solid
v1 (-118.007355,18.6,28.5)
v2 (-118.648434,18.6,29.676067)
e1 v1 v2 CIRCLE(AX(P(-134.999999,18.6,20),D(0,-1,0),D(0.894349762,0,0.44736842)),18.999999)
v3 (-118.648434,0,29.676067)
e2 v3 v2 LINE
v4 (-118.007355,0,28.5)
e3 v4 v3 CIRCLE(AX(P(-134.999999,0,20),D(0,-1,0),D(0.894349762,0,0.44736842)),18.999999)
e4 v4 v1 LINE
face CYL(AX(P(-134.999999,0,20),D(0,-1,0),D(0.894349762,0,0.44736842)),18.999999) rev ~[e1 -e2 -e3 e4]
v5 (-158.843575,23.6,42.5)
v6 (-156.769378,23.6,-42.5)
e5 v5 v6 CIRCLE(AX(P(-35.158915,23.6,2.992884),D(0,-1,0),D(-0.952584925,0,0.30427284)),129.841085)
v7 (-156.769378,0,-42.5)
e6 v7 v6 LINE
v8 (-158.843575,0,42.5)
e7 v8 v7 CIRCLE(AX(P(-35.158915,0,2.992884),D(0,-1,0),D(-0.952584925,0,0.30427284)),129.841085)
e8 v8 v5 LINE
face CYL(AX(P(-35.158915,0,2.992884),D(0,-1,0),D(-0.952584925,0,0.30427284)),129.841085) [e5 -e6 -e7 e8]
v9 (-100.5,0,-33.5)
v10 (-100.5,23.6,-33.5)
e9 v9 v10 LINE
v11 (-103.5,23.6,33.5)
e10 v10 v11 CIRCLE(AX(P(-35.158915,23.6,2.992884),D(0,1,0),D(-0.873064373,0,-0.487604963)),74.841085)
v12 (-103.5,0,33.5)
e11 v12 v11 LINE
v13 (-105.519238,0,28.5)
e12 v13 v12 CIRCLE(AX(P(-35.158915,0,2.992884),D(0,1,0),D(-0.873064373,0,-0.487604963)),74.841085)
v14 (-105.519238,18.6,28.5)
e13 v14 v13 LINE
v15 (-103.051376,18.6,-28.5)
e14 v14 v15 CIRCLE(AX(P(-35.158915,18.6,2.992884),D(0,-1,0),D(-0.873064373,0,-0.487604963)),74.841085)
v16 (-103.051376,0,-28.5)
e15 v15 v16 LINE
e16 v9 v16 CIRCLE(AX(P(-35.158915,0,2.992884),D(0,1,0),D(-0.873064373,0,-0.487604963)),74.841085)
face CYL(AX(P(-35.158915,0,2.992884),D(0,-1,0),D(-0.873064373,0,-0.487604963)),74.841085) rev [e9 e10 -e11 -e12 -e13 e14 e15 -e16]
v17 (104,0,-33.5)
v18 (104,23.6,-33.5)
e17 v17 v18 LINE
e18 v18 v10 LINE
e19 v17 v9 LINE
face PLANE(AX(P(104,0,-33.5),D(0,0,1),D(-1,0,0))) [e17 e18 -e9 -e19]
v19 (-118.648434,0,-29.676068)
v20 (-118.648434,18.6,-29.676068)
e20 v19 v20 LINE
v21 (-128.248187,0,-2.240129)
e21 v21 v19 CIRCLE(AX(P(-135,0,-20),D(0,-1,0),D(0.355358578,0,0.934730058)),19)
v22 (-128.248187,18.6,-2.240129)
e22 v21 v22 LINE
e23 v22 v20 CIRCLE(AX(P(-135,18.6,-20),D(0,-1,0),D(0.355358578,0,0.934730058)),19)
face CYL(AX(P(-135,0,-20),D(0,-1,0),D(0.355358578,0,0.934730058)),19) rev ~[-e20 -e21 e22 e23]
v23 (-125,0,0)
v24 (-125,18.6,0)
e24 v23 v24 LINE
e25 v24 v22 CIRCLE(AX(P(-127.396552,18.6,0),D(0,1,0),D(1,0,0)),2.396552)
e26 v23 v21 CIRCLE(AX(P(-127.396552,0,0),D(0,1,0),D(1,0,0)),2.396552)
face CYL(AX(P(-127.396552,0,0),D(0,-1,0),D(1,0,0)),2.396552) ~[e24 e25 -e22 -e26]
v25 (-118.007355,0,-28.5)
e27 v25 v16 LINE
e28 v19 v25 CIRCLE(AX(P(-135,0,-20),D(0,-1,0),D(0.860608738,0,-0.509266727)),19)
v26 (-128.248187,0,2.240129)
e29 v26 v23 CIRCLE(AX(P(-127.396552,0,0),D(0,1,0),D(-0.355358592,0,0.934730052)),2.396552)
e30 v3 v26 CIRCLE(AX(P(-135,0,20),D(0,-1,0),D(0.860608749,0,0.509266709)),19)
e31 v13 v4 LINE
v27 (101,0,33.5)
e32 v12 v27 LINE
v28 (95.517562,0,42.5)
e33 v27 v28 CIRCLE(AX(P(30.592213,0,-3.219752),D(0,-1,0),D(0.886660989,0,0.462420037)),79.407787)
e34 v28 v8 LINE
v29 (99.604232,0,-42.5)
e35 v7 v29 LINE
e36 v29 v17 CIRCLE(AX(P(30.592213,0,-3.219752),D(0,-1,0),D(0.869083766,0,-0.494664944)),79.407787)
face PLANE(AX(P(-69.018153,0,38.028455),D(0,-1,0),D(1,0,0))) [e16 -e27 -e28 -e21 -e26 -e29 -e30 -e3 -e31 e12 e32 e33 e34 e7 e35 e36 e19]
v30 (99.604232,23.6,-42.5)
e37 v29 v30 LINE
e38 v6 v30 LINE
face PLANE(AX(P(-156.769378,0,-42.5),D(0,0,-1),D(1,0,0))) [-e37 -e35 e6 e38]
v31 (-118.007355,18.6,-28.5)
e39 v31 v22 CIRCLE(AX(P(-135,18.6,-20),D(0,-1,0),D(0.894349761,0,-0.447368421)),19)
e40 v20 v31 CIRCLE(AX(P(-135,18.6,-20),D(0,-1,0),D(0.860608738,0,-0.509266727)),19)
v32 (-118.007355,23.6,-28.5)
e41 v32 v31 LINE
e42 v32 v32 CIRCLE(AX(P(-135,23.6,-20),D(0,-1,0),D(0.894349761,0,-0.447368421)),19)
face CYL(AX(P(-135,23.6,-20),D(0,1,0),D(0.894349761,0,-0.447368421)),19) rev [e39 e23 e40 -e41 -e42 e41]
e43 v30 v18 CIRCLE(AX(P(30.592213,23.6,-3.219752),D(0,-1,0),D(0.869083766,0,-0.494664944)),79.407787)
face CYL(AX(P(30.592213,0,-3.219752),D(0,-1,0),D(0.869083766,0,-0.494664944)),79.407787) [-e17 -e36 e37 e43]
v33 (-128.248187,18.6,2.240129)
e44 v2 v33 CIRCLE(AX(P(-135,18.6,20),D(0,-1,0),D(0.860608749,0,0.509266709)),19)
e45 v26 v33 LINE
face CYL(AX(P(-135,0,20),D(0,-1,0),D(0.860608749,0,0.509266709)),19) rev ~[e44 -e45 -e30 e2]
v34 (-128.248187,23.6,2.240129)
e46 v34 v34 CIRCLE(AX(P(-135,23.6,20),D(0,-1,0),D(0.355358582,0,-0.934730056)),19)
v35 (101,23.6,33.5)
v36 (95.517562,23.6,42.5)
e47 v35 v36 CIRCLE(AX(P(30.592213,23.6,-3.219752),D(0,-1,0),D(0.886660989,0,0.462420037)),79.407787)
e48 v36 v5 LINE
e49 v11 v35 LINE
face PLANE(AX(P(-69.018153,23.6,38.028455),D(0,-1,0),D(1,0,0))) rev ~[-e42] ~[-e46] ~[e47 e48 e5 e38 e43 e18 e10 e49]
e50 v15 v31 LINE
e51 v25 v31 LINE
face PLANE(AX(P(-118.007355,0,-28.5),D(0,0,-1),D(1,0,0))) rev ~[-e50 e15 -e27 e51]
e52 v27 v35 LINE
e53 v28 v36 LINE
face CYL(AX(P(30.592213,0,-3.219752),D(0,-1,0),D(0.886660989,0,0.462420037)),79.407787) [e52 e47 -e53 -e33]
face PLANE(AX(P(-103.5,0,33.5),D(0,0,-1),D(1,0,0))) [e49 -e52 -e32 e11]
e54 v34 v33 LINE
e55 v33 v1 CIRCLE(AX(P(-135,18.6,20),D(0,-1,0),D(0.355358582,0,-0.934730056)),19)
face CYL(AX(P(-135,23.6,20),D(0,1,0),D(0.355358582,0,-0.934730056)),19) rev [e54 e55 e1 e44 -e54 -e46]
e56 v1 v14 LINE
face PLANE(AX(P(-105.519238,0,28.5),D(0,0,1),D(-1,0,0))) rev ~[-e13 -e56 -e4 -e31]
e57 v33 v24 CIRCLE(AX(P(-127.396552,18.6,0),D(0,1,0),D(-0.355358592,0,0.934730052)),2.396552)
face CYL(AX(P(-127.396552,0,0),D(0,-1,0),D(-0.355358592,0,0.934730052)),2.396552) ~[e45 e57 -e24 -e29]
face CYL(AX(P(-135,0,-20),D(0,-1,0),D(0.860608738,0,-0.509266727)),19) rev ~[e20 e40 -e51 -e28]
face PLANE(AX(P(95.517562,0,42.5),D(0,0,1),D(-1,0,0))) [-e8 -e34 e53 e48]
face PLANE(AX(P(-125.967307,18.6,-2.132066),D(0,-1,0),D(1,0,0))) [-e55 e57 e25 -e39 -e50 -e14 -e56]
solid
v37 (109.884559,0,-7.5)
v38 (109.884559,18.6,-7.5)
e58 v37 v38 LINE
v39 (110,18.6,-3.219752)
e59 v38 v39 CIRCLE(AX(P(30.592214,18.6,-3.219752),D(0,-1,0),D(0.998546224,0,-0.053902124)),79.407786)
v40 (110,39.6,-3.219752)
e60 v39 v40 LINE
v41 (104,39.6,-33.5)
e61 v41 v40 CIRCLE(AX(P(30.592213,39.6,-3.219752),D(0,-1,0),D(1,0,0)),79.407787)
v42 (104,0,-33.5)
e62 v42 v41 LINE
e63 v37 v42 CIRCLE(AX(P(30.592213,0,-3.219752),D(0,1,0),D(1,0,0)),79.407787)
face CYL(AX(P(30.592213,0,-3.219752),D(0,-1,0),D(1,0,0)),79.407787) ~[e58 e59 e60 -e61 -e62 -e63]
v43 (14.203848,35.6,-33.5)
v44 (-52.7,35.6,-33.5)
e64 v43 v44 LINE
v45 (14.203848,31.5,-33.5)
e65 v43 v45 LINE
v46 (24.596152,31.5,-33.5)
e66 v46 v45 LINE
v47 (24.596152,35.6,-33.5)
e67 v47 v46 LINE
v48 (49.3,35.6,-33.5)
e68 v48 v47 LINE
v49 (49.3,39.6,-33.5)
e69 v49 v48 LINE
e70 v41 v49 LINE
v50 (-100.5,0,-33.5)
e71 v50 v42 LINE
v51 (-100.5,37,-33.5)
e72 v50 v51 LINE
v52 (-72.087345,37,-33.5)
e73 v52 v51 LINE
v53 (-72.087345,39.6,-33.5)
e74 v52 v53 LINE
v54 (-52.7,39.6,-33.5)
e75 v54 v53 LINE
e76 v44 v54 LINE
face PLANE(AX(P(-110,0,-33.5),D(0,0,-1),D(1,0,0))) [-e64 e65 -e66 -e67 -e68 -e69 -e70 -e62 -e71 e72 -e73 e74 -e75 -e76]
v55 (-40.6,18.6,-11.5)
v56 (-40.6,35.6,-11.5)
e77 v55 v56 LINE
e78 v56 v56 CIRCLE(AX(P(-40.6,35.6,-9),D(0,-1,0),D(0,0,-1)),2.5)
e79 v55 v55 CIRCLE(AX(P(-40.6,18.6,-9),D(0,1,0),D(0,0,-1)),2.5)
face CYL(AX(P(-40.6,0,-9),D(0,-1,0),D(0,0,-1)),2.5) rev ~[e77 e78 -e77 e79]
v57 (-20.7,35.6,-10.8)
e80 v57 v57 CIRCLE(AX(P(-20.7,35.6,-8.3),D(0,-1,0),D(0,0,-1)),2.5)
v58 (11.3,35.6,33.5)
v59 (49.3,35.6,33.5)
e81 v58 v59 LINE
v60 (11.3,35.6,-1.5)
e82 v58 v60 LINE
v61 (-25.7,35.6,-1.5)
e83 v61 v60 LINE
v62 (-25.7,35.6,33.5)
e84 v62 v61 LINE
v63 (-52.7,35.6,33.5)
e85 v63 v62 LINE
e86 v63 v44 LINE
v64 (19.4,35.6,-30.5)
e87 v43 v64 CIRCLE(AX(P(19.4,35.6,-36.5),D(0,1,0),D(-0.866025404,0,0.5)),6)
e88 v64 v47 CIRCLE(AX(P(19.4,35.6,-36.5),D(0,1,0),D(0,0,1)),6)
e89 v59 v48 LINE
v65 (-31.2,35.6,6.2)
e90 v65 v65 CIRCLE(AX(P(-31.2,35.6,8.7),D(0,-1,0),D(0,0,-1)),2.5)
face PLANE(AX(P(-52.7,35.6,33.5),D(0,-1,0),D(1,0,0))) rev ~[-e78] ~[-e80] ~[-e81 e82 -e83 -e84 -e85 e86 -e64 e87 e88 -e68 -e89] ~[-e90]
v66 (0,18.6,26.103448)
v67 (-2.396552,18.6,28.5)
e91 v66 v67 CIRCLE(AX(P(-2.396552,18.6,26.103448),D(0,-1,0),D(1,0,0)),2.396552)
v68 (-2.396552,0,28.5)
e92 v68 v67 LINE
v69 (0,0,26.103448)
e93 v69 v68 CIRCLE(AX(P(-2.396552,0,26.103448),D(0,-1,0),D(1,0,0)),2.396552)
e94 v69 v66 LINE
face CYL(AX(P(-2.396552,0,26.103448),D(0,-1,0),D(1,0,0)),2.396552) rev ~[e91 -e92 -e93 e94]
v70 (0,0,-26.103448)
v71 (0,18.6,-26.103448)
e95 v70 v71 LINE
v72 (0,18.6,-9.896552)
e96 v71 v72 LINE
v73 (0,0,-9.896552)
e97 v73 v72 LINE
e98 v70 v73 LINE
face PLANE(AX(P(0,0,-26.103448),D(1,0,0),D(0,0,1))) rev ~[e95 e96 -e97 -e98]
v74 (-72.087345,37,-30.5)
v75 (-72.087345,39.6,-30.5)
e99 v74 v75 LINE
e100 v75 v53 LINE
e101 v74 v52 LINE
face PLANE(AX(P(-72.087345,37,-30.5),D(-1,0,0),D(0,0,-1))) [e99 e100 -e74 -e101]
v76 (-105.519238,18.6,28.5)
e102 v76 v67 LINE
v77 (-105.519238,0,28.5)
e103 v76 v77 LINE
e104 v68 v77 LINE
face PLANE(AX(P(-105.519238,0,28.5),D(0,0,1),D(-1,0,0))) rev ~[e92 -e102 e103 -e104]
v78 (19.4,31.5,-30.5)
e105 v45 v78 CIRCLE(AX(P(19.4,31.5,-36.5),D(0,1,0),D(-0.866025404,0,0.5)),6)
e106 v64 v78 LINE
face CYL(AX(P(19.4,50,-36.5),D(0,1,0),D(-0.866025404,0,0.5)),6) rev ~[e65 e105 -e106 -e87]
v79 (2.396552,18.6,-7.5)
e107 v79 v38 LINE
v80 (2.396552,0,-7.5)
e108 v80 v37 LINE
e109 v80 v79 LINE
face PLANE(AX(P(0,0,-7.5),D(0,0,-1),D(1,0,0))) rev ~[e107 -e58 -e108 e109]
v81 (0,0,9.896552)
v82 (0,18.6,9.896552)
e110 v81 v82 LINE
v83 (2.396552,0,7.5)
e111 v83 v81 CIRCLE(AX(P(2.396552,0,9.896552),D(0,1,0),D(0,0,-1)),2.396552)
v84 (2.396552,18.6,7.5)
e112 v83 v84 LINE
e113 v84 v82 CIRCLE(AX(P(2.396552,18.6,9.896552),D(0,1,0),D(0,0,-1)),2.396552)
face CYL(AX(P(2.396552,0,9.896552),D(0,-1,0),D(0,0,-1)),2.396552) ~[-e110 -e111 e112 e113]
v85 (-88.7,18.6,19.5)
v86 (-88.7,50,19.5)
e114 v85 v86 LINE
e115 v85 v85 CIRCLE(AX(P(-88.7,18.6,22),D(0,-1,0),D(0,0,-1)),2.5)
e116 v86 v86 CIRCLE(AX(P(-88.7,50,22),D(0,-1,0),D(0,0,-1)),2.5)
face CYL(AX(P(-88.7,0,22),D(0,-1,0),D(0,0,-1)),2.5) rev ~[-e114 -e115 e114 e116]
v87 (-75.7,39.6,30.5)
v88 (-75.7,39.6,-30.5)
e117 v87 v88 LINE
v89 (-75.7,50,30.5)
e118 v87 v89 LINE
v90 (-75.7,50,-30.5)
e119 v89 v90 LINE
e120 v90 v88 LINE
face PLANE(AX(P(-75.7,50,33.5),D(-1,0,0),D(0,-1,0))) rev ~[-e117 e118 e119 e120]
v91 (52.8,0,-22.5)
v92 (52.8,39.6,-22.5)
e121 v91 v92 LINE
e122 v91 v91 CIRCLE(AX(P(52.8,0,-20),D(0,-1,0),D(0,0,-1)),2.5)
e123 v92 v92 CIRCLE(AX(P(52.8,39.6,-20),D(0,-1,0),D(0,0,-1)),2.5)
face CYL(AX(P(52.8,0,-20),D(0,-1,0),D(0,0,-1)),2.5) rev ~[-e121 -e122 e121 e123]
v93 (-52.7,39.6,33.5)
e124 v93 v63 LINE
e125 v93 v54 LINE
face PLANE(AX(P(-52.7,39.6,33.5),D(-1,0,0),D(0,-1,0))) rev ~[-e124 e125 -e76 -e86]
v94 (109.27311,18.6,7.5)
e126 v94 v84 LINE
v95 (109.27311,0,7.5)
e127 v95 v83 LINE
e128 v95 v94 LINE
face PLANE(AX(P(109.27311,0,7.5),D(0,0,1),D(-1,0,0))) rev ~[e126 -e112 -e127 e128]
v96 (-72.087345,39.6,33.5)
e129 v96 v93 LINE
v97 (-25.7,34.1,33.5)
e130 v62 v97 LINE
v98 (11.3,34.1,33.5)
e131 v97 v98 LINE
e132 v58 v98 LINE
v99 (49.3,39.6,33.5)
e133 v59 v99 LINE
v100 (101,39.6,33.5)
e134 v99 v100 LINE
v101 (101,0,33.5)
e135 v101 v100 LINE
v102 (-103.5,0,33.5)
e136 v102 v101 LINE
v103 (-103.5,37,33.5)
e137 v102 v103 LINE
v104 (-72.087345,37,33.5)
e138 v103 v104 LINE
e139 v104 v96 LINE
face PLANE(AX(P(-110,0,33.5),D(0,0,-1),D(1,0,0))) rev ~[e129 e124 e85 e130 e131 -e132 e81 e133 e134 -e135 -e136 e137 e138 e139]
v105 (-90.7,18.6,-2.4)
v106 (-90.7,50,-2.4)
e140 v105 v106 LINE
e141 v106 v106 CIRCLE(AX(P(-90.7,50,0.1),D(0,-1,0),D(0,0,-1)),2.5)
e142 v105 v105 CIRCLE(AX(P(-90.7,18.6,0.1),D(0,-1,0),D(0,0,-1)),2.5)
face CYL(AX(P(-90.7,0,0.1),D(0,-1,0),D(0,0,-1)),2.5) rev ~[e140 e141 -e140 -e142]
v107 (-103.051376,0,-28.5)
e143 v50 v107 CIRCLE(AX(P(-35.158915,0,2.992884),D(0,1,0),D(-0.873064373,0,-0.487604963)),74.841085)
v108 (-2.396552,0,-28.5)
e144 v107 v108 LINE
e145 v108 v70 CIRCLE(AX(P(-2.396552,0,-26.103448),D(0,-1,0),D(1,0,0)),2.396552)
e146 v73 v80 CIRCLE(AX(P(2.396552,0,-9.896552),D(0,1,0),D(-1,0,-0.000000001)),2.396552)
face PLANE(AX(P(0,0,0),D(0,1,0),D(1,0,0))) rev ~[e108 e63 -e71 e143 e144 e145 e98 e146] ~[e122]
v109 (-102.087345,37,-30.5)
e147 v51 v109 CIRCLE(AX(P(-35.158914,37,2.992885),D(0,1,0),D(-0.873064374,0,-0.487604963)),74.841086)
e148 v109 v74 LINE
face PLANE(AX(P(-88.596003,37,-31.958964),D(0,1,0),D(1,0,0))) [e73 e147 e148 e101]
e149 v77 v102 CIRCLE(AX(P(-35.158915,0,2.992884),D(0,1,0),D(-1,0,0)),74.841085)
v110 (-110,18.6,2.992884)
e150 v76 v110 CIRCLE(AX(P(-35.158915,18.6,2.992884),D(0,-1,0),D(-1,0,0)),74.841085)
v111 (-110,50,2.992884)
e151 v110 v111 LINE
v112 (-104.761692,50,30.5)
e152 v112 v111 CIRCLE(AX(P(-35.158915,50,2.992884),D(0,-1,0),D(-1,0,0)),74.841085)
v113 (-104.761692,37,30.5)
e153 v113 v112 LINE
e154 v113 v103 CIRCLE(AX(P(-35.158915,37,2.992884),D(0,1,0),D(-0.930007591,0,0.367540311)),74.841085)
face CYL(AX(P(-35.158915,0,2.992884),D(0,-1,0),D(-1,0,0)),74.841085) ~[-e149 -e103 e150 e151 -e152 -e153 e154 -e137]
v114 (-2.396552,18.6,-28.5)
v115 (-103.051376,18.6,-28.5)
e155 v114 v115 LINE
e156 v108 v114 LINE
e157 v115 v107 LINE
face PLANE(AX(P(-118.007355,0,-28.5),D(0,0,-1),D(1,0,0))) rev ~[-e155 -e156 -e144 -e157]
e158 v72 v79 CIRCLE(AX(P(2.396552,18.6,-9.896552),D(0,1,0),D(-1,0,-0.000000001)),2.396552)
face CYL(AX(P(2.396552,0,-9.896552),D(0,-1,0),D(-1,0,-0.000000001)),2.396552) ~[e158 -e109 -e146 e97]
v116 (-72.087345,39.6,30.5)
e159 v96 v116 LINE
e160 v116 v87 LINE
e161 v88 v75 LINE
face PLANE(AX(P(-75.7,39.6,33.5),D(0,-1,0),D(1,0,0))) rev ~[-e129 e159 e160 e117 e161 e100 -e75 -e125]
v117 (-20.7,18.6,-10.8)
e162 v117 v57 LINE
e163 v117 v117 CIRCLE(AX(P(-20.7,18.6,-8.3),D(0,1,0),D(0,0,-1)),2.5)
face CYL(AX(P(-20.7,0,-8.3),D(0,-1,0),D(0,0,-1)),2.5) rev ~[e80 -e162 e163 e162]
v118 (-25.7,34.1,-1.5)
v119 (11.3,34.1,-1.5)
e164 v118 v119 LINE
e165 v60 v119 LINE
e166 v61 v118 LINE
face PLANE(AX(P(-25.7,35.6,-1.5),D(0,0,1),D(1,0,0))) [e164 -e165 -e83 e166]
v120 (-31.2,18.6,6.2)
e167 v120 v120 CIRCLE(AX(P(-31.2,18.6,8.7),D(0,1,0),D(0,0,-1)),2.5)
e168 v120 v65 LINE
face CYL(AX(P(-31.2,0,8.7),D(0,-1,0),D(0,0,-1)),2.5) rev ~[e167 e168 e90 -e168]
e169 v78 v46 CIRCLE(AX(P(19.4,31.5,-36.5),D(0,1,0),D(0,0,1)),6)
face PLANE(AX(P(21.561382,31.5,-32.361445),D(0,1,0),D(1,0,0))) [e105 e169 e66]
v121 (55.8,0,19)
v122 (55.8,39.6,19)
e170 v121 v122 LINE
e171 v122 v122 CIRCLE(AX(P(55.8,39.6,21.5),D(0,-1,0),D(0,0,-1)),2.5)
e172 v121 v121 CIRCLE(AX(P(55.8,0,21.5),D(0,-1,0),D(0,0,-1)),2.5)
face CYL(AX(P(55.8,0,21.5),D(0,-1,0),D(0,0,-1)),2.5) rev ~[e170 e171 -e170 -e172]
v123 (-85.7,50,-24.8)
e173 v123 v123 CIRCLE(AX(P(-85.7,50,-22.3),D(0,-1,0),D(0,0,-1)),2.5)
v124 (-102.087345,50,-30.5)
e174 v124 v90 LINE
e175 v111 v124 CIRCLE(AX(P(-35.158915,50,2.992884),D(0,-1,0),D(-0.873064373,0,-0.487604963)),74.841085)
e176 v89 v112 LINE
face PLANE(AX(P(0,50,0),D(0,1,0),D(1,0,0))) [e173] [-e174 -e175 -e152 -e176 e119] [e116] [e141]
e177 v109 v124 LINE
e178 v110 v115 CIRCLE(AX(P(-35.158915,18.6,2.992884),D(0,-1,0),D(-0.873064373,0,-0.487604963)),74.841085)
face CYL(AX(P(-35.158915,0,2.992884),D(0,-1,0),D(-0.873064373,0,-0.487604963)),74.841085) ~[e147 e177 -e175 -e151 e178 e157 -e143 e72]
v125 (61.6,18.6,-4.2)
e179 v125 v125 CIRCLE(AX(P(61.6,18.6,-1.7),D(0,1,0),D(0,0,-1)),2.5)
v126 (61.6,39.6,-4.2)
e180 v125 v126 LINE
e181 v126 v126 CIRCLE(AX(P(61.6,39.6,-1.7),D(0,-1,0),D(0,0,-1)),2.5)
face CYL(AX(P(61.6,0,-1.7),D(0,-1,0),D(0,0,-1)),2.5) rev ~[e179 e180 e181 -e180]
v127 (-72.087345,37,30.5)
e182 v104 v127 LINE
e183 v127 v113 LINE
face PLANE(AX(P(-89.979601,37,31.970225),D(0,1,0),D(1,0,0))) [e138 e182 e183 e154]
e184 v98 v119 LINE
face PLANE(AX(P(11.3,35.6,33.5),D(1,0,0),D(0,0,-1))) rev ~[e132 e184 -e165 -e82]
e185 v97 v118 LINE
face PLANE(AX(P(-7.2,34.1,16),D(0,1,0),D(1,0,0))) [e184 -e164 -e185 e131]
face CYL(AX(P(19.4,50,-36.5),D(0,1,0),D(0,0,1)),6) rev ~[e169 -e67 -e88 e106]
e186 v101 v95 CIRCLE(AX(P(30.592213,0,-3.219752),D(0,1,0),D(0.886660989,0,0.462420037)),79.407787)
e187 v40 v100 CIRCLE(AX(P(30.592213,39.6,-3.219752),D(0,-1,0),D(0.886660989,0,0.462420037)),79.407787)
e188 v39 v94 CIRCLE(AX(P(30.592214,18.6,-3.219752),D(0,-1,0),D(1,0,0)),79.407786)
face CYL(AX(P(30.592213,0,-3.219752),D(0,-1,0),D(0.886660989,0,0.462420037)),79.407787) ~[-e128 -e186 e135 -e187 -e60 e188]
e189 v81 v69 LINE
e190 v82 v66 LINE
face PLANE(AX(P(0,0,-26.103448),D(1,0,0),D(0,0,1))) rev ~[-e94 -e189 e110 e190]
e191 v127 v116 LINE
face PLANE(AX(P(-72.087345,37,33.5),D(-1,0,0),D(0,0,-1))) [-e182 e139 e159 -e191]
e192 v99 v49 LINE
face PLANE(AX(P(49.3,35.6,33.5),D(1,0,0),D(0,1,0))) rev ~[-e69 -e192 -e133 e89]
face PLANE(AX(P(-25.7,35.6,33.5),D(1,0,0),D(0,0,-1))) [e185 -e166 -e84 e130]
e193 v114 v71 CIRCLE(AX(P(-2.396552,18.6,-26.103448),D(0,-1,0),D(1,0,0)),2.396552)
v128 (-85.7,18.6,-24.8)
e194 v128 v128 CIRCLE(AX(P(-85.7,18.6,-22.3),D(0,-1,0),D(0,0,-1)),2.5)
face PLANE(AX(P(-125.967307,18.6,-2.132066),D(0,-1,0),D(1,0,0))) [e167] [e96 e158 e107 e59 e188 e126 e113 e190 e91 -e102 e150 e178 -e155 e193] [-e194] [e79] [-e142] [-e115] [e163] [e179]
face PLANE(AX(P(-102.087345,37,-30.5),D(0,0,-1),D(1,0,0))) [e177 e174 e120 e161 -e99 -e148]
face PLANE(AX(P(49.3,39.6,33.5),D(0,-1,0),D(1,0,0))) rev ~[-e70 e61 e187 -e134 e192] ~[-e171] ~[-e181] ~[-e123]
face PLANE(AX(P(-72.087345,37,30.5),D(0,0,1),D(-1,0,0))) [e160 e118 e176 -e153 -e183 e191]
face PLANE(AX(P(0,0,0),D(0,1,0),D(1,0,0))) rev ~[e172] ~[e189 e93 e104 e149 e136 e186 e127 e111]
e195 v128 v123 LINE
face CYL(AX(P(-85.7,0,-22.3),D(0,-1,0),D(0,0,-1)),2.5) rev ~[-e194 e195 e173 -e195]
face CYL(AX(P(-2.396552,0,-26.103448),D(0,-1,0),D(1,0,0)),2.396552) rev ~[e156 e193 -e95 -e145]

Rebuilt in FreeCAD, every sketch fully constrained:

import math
import FreeCAD as App
import Part
import Sketcher

V = App.Vector
Q = App.Units.Quantity

doc = App.newDocument("Part")
body = doc.addObject("PartDesign::Body", "Body")

# Sketch on XZ plane
sketch1 = doc.addObject("Sketcher::SketchObject", "Sketch")
body.addObject(sketch1)
sketch1.AttachmentSupport = (doc.XZ_Plane, [""])
sketch1.MapMode = "FlatFace"
sketch1.addGeometry([
    Part.LineSegment(V(-110, -34, 0), V(-110, 34, 0)),
    Part.LineSegment(V(-110, 34, 0), V(110, 34, 0)),
    Part.LineSegment(V(110, 34, 0), V(110, -34, 0)),
    Part.LineSegment(V(110, -34, 0), V(-110, -34, 0)),
], False)
sketch1.addConstraint([
    Sketcher.Constraint("Coincident", 0, 2, 1, 1),
    Sketcher.Constraint("Coincident", 1, 2, 2, 1),
    Sketcher.Constraint("Coincident", 2, 2, 3, 1),
    Sketcher.Constraint("Coincident", 3, 2, 0, 1),
    Sketcher.Constraint("Vertical", 0),
    Sketcher.Constraint("Horizontal", 1),
    Sketcher.Constraint("Vertical", 2),
    Sketcher.Constraint("Horizontal", 3),
    Sketcher.Constraint("Symmetric", 0, 2, 2, 2, -1, 1),
    Sketcher.Constraint("DistanceX", 1, 1, 1, 2, Q("220 mm")),
    Sketcher.Constraint("DistanceY", 0, 1, 0, 2, Q("67 mm")),
])
pad1 = doc.addObject("PartDesign::Pad", "Pad")
body.addObject(pad1)
pad1.Profile = sketch1
pad1.Length = 50
pad1.Reversed = True

# Sketch on XZ plane
sketch2 = doc.addObject("Sketcher::SketchObject", "Sketch001")
body.addObject(sketch2)
sketch2.AttachmentSupport = (doc.XZ_Plane, [""])
sketch2.MapMode = "FlatFace"
sketch2.addGeometry([
    Part.LineSegment(V(110, -3, 0), V(110, 34, 0)),  # 0
    Part.LineSegment(V(110, 34, 0), V(101, 34, 0)),  # 1
    Part.ArcOfCircle(Part.Circle(V(31, -3, 0), V(0, 0, 1), 79), math.radians(0), math.radians(28)),  # 2
    Part.LineSegment(V(110, -34, 0), V(110, -3, 0)),  # 3
    Part.ArcOfCircle(Part.Circle(V(31, -3, 0), V(0, 0, 1), 79), math.radians(-22), math.radians(0)),  # 4
    Part.LineSegment(V(104, -34, 0), V(110, -34, 0)),  # 5
    Part.ArcOfCircle(Part.Circle(V(-35, 3, 0), V(0, 0, 1), 75), math.radians(180), math.radians(209)),  # 6
    Part.LineSegment(V(-110, 3, 0), V(-110, -34, 0)),  # 7
    Part.LineSegment(V(-110, -34, 0), V(-100, -34, 0)),  # 8
    Part.ArcOfCircle(Part.Circle(V(-35, 3, 0), V(0, 0, 1), 75), math.radians(156), math.radians(180)),  # 9
    Part.LineSegment(V(-104, 34, 0), V(-110, 34, 0)),  # 10
    Part.LineSegment(V(-110, 34, 0), V(-110, 3, 0)),  # 11
], False)
sketch2.addConstraint([
    Sketcher.Constraint("Coincident", 0, 2, 1, 1),
    Sketcher.Constraint("Coincident", 1, 2, 2, 2),
    Sketcher.Constraint("Tangent", 2, 1, 0, 1),
    Sketcher.Constraint("Tangent", 3, 2, 4, 2),
    Sketcher.Constraint("Coincident", 4, 1, 5, 1),
    Sketcher.Constraint("Coincident", 5, 2, 3, 1),
    Sketcher.Constraint("Tangent", 6, 1, 7, 1),
    Sketcher.Constraint("Coincident", 7, 2, 8, 1),
    Sketcher.Constraint("Coincident", 8, 2, 6, 2),
    Sketcher.Constraint("Coincident", 9, 1, 10, 1),
    Sketcher.Constraint("Coincident", 10, 2, 11, 1),
    Sketcher.Constraint("Tangent", 11, 2, 9, 2),
    Sketcher.Constraint("Vertical", 0),
    Sketcher.Constraint("Horizontal", 1),
    Sketcher.Constraint("Vertical", 3),
    Sketcher.Constraint("Horizontal", 5),
    Sketcher.Constraint("Vertical", 7),
    Sketcher.Constraint("Horizontal", 8),
    Sketcher.Constraint("Horizontal", 10),
    Sketcher.Constraint("Vertical", 11),
    Sketcher.Constraint("Coincident", 4, 3, 2, 3),
    Sketcher.Constraint("Coincident", 9, 3, 6, 3),
    Sketcher.Constraint("Equal", 2, 4),
    Sketcher.Constraint("Equal", 6, 9),
    Sketcher.Constraint("Symmetric", 0, 2, 7, 2, -1, 1),
    Sketcher.Constraint("Horizontal", 5, 2, 7, 2),
    Sketcher.Constraint("Horizontal", 1, 2, 9, 1),
    Sketcher.Constraint("DistanceX", 1, 2, 1, 1, Q("9 mm")),
    Sketcher.Constraint("DistanceX", 5, 1, 5, 2, Q("6 mm")),
    Sketcher.Constraint("DistanceX", 8, 1, 8, 2, Q("9.5 mm")),
    Sketcher.Constraint("DistanceX", 10, 2, 10, 1, Q("6.5 mm")),
    Sketcher.Constraint("DistanceX", -1, 1, 0, 2, Q("110 mm")),
    Sketcher.Constraint("DistanceY", 4, 1, 1, 2, Q("67 mm")),
])
pocket1 = doc.addObject("PartDesign::Pocket", "Pocket")
body.addObject(pocket1)
pocket1.Profile = sketch2
pocket1.Type = "ThroughAll"

# Sketch on XY plane
sketch3 = doc.addObject("Sketcher::SketchObject", "Sketch002")
body.addObject(sketch3)
sketch3.AttachmentSupport = (doc.XY_Plane, [""])
sketch3.MapMode = "FlatFace"
sketch3.AttachmentOffset = App.Placement(V(0, 0, 33.5), App.Rotation())
sketch3.addGeometry([
    Part.LineSegment(V(-75.7, 39.6, 0), V(-75.7, 50, 0)),  # 0
    Part.LineSegment(V(-75.7, 50, 0), V(110, 50, 0)),  # 1
    Part.LineSegment(V(110, 50, 0), V(110, 39.6, 0)),  # 2
    Part.LineSegment(V(110, 39.6, 0), V(49.3, 39.6, 0)),  # 3
    Part.LineSegment(V(49.3, 39.6, 0), V(49.3, 35.6, 0)),  # 4
    Part.LineSegment(V(49.3, 35.6, 0), V(-52.7, 35.6, 0)),  # 5
    Part.LineSegment(V(-52.7, 35.6, 0), V(-52.7, 39.6, 0)),  # 6
    Part.LineSegment(V(-52.7, 39.6, 0), V(-75.7, 39.6, 0)),  # 7
], False)
sketch3.addConstraint([
    Sketcher.Constraint("Coincident", 0, 2, 1, 1),
    Sketcher.Constraint("Coincident", 1, 2, 2, 1),
    Sketcher.Constraint("Coincident", 2, 2, 3, 1),
    Sketcher.Constraint("Coincident", 3, 2, 4, 1),
    Sketcher.Constraint("Coincident", 4, 2, 5, 1),
    Sketcher.Constraint("Coincident", 5, 2, 6, 1),
    Sketcher.Constraint("Coincident", 6, 2, 7, 1),
    Sketcher.Constraint("Coincident", 7, 2, 0, 1),
    Sketcher.Constraint("Vertical", 0),
    Sketcher.Constraint("Horizontal", 1),
    Sketcher.Constraint("Vertical", 2),
    Sketcher.Constraint("Horizontal", 3),
    Sketcher.Constraint("Vertical", 4),
    Sketcher.Constraint("Horizontal", 5),
    Sketcher.Constraint("Vertical", 6),
    Sketcher.Constraint("Horizontal", 7),
    Sketcher.Constraint("Horizontal", 3, 2, 6, 2),
    Sketcher.Constraint("DistanceX", 5, 2, 5, 1, Q("102 mm")),
    Sketcher.Constraint("DistanceX", 7, 2, 7, 1, Q("23 mm")),
    Sketcher.Constraint("DistanceY", 4, 2, 4, 1, Q("4 mm")),
    Sketcher.Constraint("DistanceX", 1, 1, 1, 2, Q("185.7 mm")),
    Sketcher.Constraint("DistanceY", 0, 1, 0, 2, Q("10.4 mm")),
    Sketcher.Constraint("DistanceY", -1, 1, 0, 2, Q("50 mm")),
    Sketcher.Constraint("DistanceX", -1, 1, 1, 2, Q("110 mm")),
])
pocket2 = doc.addObject("PartDesign::Pocket", "Pocket001")
body.addObject(pocket2)
pocket2.Profile = sketch3
pocket2.Type = "ThroughAll"

# Sketch on XZ plane
sketch4 = doc.addObject("Sketcher::SketchObject", "Sketch003")
body.addObject(sketch4)
sketch4.AttachmentSupport = (doc.XZ_Plane, [""])
sketch4.MapMode = "FlatFace"
sketch4.AttachmentOffset = App.Placement(V(0, 0, -37), App.Rotation())
sketch4.addGeometry([
    Part.ArcOfCircle(Part.Circle(V(-35.2, 3, 0), V(0, 0, 1), 74.8), math.radians(-153.42), math.radians(-150.82)),  # 0
    Part.LineSegment(V(-102.1, -30.5, 0), V(-72.1, -30.5, 0)),  # 1
    Part.LineSegment(V(-72.1, -30.5, 0), V(-72.1, -33.5, 0)),  # 2
    Part.LineSegment(V(-72.1, -33.5, 0), V(-100.5, -33.5, 0)),  # 3
    Part.ArcOfCircle(Part.Circle(V(-35.2, 3, 0), V(0, 0, 1), 74.8), math.radians(155.94), math.radians(158.44)),  # 4
    Part.LineSegment(V(-103.5, 33.5, 0), V(-72.1, 33.5, 0)),  # 5
    Part.LineSegment(V(-72.1, 33.5, 0), V(-72.1, 30.5, 0)),  # 6
    Part.LineSegment(V(-72.1, 30.5, 0), V(-104.8, 30.5, 0)),  # 7
], False)
sketch4.addConstraint([
    Sketcher.Constraint("Coincident", 0, 1, 1, 1),
    Sketcher.Constraint("Coincident", 1, 2, 2, 1),
    Sketcher.Constraint("Coincident", 2, 2, 3, 1),
    Sketcher.Constraint("Coincident", 3, 2, 0, 2),
    Sketcher.Constraint("Coincident", 4, 1, 5, 1),
    Sketcher.Constraint("Coincident", 5, 2, 6, 1),
    Sketcher.Constraint("Coincident", 6, 2, 7, 1),
    Sketcher.Constraint("Coincident", 7, 2, 4, 2),
    Sketcher.Constraint("Horizontal", 1),
    Sketcher.Constraint("Vertical", 2),
    Sketcher.Constraint("Horizontal", 3),
    Sketcher.Constraint("Horizontal", 5),
    Sketcher.Constraint("Vertical", 6),
    Sketcher.Constraint("Horizontal", 7),
    Sketcher.Constraint("Coincident", 4, 3, 0, 3),
    Sketcher.Constraint("Equal", 0, 4),
    Sketcher.Constraint("Symmetric", 2, 2, 5, 2, -1),
    Sketcher.Constraint("Equal", 2, 6),
    Sketcher.Constraint("DistanceX", 1, 1, 1, 2, Q("30 mm")),
    Sketcher.Constraint("DistanceY", 2, 2, 2, 1, Q("3 mm")),
    Sketcher.Constraint("DistanceY", 0, 1, 4, 1, Q("64 mm")),
    Sketcher.Constraint("DistanceX", 4, 1, 3, 2, Q("3 mm")),
    Sketcher.Constraint("DistanceX", 3, 2, -1, 1, Q("100.5 mm")),
    Sketcher.Constraint("Radius", 0, Q("74.841086 mm")),
])
pocket3 = doc.addObject("PartDesign::Pocket", "Pocket002")
body.addObject(pocket3)
pocket3.Profile = sketch4
pocket3.Length = 13

# Sketch on XZ plane
sketch5 = doc.addObject("Sketcher::SketchObject", "Sketch004")
body.addObject(sketch5)
sketch5.AttachmentSupport = (doc.XZ_Plane, [""])
sketch5.MapMode = "FlatFace"
sketch5.addGeometry([
    Part.Circle(V(-40.6, -9, 0), V(0, 0, 1), 2.5),  # 0
    Part.Circle(V(-20.7, -8.3, 0), V(0, 0, 1), 2.5),  # 1
    Part.Circle(V(-31.2, 8.7, 0), V(0, 0, 1), 2.5),  # 2
    Part.Circle(V(-88.7, 22, 0), V(0, 0, 1), 2.5),  # 3
    Part.Circle(V(-90.7, 0.1, 0), V(0, 0, 1), 2.5),  # 4
    Part.Circle(V(-85.7, -22.3, 0), V(0, 0, 1), 2.5),  # 5
    Part.Circle(V(52.8, -20, 0), V(0, 0, 1), 2.5),  # 6
    Part.Circle(V(61.6, -1.7, 0), V(0, 0, 1), 2.5),  # 7
    Part.Circle(V(55.8, 21.5, 0), V(0, 0, 1), 2.5),  # 8
], False)
sketch5.addConstraint([
    Sketcher.Constraint("Equal", 0, 1),
    Sketcher.Constraint("Equal", 1, 2),
    Sketcher.Constraint("Equal", 2, 3),
    Sketcher.Constraint("Equal", 3, 4),
    Sketcher.Constraint("Equal", 4, 5),
    Sketcher.Constraint("Equal", 5, 6),
    Sketcher.Constraint("Equal", 6, 7),
    Sketcher.Constraint("Equal", 7, 8),
    Sketcher.Constraint("Diameter", 0, Q("5 mm")),
    Sketcher.Constraint("DistanceY", 0, 3, -1, 1, Q("9 mm")),
    Sketcher.Constraint("DistanceY", -1, 1, 3, 3, Q("22 mm")),
    Sketcher.Constraint("DistanceY", 6, 3, -1, 1, Q("20 mm")),
    Sketcher.Constraint("DistanceY", 1, 3, 2, 3, Q("17 mm")),
    Sketcher.Constraint("DistanceX", 3, 3, 1, 3, Q("68 mm")),
    Sketcher.Constraint("DistanceX", 4, 3, 3, 3, Q("2 mm")),
    Sketcher.Constraint("DistanceX", 4, 3, 5, 3, Q("5 mm")),
    Sketcher.Constraint("DistanceY", 5, 3, 2, 3, Q("31 mm")),
    Sketcher.Constraint("DistanceX", 2, 3, 6, 3, Q("84 mm")),
    Sketcher.Constraint("DistanceX", 6, 3, 8, 3, Q("3 mm")),
    Sketcher.Constraint("DistanceX", 0, 3, -1, 1, Q("40.6 mm")),
    Sketcher.Constraint("DistanceX", 1, 3, -1, 1, Q("20.7 mm")),
    Sketcher.Constraint("DistanceY", 1, 3, -1, 1, Q("8.3 mm")),
    Sketcher.Constraint("DistanceX", 2, 3, -1, 1, Q("31.2 mm")),
    Sketcher.Constraint("DistanceY", -1, 1, 4, 3, Q("0.1 mm")),
    Sketcher.Constraint("DistanceX", -1, 1, 7, 3, Q("61.6 mm")),
    Sketcher.Constraint("DistanceY", 7, 3, -1, 1, Q("1.7 mm")),
    Sketcher.Constraint("DistanceY", -1, 1, 8, 3, Q("21.5 mm")),
])
pocket4 = doc.addObject("PartDesign::Pocket", "Pocket003")
body.addObject(pocket4)
pocket4.Profile = sketch5
pocket4.Type = "ThroughAll"

# Sketch on XZ plane
sketch6 = doc.addObject("Sketcher::SketchObject", "Sketch005")
body.addObject(sketch6)
sketch6.AttachmentSupport = (doc.XZ_Plane, [""])
sketch6.MapMode = "FlatFace"
sketch6.AttachmentOffset = App.Placement(V(0, 0, -35.6), App.Rotation())
sketch6.addGeometry([
    Part.LineSegment(V(-26, -2, 0), V(-26, 34, 0)),
    Part.LineSegment(V(-26, 34, 0), V(11, 34, 0)),
    Part.LineSegment(V(11, 34, 0), V(11, -2, 0)),
    Part.LineSegment(V(11, -2, 0), V(-26, -2, 0)),
], False)
sketch6.addConstraint([
    Sketcher.Constraint("Coincident", 0, 2, 1, 1),
    Sketcher.Constraint("Coincident", 1, 2, 2, 1),
    Sketcher.Constraint("Coincident", 2, 2, 3, 1),
    Sketcher.Constraint("Coincident", 3, 2, 0, 1),
    Sketcher.Constraint("Vertical", 0),
    Sketcher.Constraint("Horizontal", 1),
    Sketcher.Constraint("Vertical", 2),
    Sketcher.Constraint("Horizontal", 3),
    Sketcher.Constraint("DistanceX", 1, 1, 1, 2, Q("37 mm")),
    Sketcher.Constraint("DistanceY", 0, 1, 0, 2, Q("35 mm")),
    Sketcher.Constraint("DistanceX", 0, 2, -1, 1, Q("25.7 mm")),
    Sketcher.Constraint("DistanceY", -1, 1, 0, 2, Q("33.5 mm")),
])
pocket5 = doc.addObject("PartDesign::Pocket", "Pocket004")
body.addObject(pocket5)
pocket5.Profile = sketch6
pocket5.Length = 1.5
pocket5.Reversed = True

# Sketch on XZ plane
sketch7 = doc.addObject("Sketcher::SketchObject", "Sketch006")
body.addObject(sketch7)
sketch7.AttachmentSupport = (doc.XZ_Plane, [""])
sketch7.MapMode = "FlatFace"
sketch7.AttachmentOffset = App.Placement(V(0, 0, -50), App.Rotation())
sketch7.addGeometry([
    Part.LineSegment(V(25, -34, 0), V(14, -34, 0)),
    Part.ArcOfCircle(Part.Circle(V(19, -36, 0), V(0, 0, 1), 6), math.radians(90), math.radians(150)),
    Part.ArcOfCircle(Part.Circle(V(19, -36, 0), V(0, 0, 1), 6), math.radians(30), math.radians(90)),
], False)
sketch7.addConstraint([
    Sketcher.Constraint("Coincident", 0, 2, 1, 2),
    Sketcher.Constraint("Tangent", 1, 1, 2, 2),
    Sketcher.Constraint("Coincident", 2, 1, 0, 1),
    Sketcher.Constraint("Horizontal", 0),
    Sketcher.Constraint("Equal", 1, 2),
    Sketcher.Constraint("Vertical", 2, 3, 1, 1),
    Sketcher.Constraint("Radius", 1, Q("6 mm")),
    Sketcher.Constraint("DistanceY", 1, 3, 0, 2, Q("3 mm")),
    Sketcher.Constraint("DistanceX", -1, 1, 1, 3, Q("19.4 mm")),
    Sketcher.Constraint("DistanceY", 1, 3, -1, 1, Q("36.5 mm")),
])
pocket6 = doc.addObject("PartDesign::Pocket", "Pocket005")
body.addObject(pocket6)
pocket6.Profile = sketch7
pocket6.Length = 18.5
pocket6.Reversed = True
body2 = doc.addObject("PartDesign::Body", "Body001")

# Sketch on XZ plane
sketch8 = doc.addObject("Sketcher::SketchObject", "Sketch007")
body2.addObject(sketch8)
sketch8.AttachmentSupport = (doc.getObject("XZ_Plane001"), [""])
sketch8.MapMode = "FlatFace"
sketch8.addGeometry([
    Part.LineSegment(V(-104, 34, 0), V(101, 34, 0)),  # 0
    Part.ArcOfCircle(Part.Circle(V(31, -3, 0), V(0, 0, 1), 79), math.radians(27.54), math.radians(35.15)),  # 1
    Part.LineSegment(V(96, 42, 0), V(-159, 42, 0)),  # 2
    Part.ArcOfCircle(Part.Circle(V(-35, 3, 0), V(0, 0, 1), 130), math.radians(162), math.radians(201)),  # 3
    Part.LineSegment(V(-157, -42, 0), V(100, -42, 0)),  # 4
    Part.ArcOfCircle(Part.Circle(V(31, -3, 0), V(0, 0, 1), 79), math.radians(-29.65), math.radians(-22.42)),  # 5
    Part.LineSegment(V(104, -34, 0), V(-100, -34, 0)),  # 6
    Part.ArcOfCircle(Part.Circle(V(-35, 3, 0), V(0, 0, 1), 75), math.radians(156), math.radians(209)),  # 7
], False)
sketch8.addConstraint([
    Sketcher.Constraint("Coincident", 0, 2, 1, 1),
    Sketcher.Constraint("Coincident", 1, 2, 2, 1),
    Sketcher.Constraint("Coincident", 2, 2, 3, 1),
    Sketcher.Constraint("Coincident", 3, 2, 4, 1),
    Sketcher.Constraint("Coincident", 4, 2, 5, 1),
    Sketcher.Constraint("Coincident", 5, 2, 6, 1),
    Sketcher.Constraint("Coincident", 6, 2, 7, 2),
    Sketcher.Constraint("Coincident", 7, 1, 0, 1),
    Sketcher.Constraint("Horizontal", 0),
    Sketcher.Constraint("Horizontal", 2),
    Sketcher.Constraint("Horizontal", 4),
    Sketcher.Constraint("Horizontal", 6),
    Sketcher.Constraint("Coincident", 5, 3, 1, 3),
    Sketcher.Constraint("Coincident", 7, 3, 3, 3),
    Sketcher.Constraint("Equal", 1, 5),
    Sketcher.Constraint("Equal", 0, 6),
    Sketcher.Constraint("DistanceX", 0, 1, 0, 2, Q("204.5 mm")),
    Sketcher.Constraint("DistanceX", -1, 1, 0, 2, Q("101 mm")),
    Sketcher.Constraint("DistanceX", -1, 1, 5, 2, Q("104 mm")),
    Sketcher.Constraint("DistanceY", 0, 2, 1, 2, Q("9 mm")),
    Sketcher.Constraint("DistanceY", 3, 2, 2, 2, Q("85 mm")),
    Sketcher.Constraint("DistanceY", 4, 2, 5, 2, Q("9 mm")),
    Sketcher.Constraint("DistanceY", -1, 1, 0, 2, Q("33.5 mm")),
    Sketcher.Constraint("Radius", 1, Q("79.407787 mm")),
    Sketcher.Constraint("Radius", 3, Q("129.841085 mm")),
    Sketcher.Constraint("Radius", 7, Q("74.841085 mm")),
])
pad2 = doc.addObject("PartDesign::Pad", "Pad001")
body2.addObject(pad2)
pad2.Profile = sketch8
pad2.Length = 23.6
pad2.Reversed = True
body3 = doc.addObject("PartDesign::Body", "Body002")

# Sketch on XZ plane
sketch9 = doc.addObject("Sketcher::SketchObject", "Sketch008")
body3.addObject(sketch9)
sketch9.AttachmentSupport = (doc.getObject("XZ_Plane002"), [""])
sketch9.MapMode = "FlatFace"
sketch9.addGeometry([
    Part.ArcOfCircle(Part.Circle(V(-135, 20, 0), V(0, 0, 1), 19), math.radians(26.57), math.radians(30.61)),  # 0
    Part.ArcOfCircle(Part.Circle(V(-135, 20, 0), V(0, 0, 1), 19), math.radians(31), math.radians(291)),  # 1
    Part.ArcOfCircle(Part.Circle(V(-127.4, 0, 0), V(0, 0, 1), 2.4), math.radians(0), math.radians(111)),  # 2
    Part.ArcOfCircle(Part.Circle(V(-127.4, 0, 0), V(0, 0, 1), 2.4), math.radians(-111), math.radians(0)),  # 3
    Part.ArcOfCircle(Part.Circle(V(-135, -20, 0), V(0, 0, 1), 19), math.radians(69), math.radians(329)),  # 4
    Part.ArcOfCircle(Part.Circle(V(-135, -20, 0), V(0, 0, 1), 19), math.radians(-30.61), math.radians(-26.57)),  # 5
    Part.LineSegment(V(-118, -28.5, 0), V(-2.4, -28.5, 0)),  # 6
    Part.ArcOfCircle(Part.Circle(V(-2.4, -26.1, 0), V(0, 0, 1), 2.4), math.radians(-90), math.radians(0)),  # 7
    Part.LineSegment(V(0, -26.1, 0), V(0, -9.9, 0)),  # 8
    Part.ArcOfCircle(Part.Circle(V(2.4, -9.9, 0), V(0, 0, 1), 2.4), math.radians(90), math.radians(180)),  # 9
    Part.LineSegment(V(2.4, -7.5, 0), V(109.9, -7.5, 0)),  # 10
    Part.ArcOfCircle(Part.Circle(V(30.6, -3.2, 0), V(0, 0, 1), 79.4), math.radians(-3.09), math.radians(0)),  # 11
    Part.ArcOfCircle(Part.Circle(V(30.6, -3.2, 0), V(0, 0, 1), 79.4), math.radians(0), math.radians(7.76)),  # 12
    Part.LineSegment(V(109.3, 7.5, 0), V(2.4, 7.5, 0)),  # 13
    Part.ArcOfCircle(Part.Circle(V(2.4, 9.9, 0), V(0, 0, 1), 2.4), math.radians(-180), math.radians(-90)),  # 14
    Part.LineSegment(V(0, 9.9, 0), V(0, 26.1, 0)),  # 15
    Part.ArcOfCircle(Part.Circle(V(-2.4, 26.1, 0), V(0, 0, 1), 2.4), math.radians(0), math.radians(90)),  # 16
    Part.LineSegment(V(-2.4, 28.5, 0), V(-118, 28.5, 0)),  # 17
    Part.Circle(V(-31.2, 8.7, 0), V(0, 0, 1), 2.5),  # 18
    Part.Circle(V(-85.7, -22.3, 0), V(0, 0, 1), 2.5),  # 19
    Part.Circle(V(-40.6, -9, 0), V(0, 0, 1), 2.5),  # 20
    Part.Circle(V(-20.7, -8.3, 0), V(0, 0, 1), 2.5),  # 21
    Part.Circle(V(-90.7, 0.1, 0), V(0, 0, 1), 2.5),  # 22
    Part.Circle(V(-88.7, 22, 0), V(0, 0, 1), 2.5),  # 23
    Part.Circle(V(61.6, -1.7, 0), V(0, 0, 1), 2.5),  # 24
], False)
sketch9.addConstraint([
    Sketcher.Constraint("Tangent", 0, 2, 1, 1),
    Sketcher.Constraint("Tangent", 1, 2, 2, 2),
    Sketcher.Constraint("Tangent", 2, 1, 3, 2),
    Sketcher.Constraint("Tangent", 3, 1, 4, 1),
    Sketcher.Constraint("Tangent", 4, 2, 5, 1),
    Sketcher.Constraint("Coincident", 5, 2, 6, 1),
    Sketcher.Constraint("Tangent", 6, 2, 7, 1),
    Sketcher.Constraint("Tangent", 7, 2, 8, 1),
    Sketcher.Constraint("Tangent", 8, 2, 9, 2),
    Sketcher.Constraint("Tangent", 9, 1, 10, 1),
    Sketcher.Constraint("Coincident", 10, 2, 11, 1),
    Sketcher.Constraint("Tangent", 11, 2, 12, 1),
    Sketcher.Constraint("Coincident", 12, 2, 13, 1),
    Sketcher.Constraint("Tangent", 13, 2, 14, 2),
    Sketcher.Constraint("Tangent", 14, 1, 15, 1),
    Sketcher.Constraint("Tangent", 15, 2, 16, 1),
    Sketcher.Constraint("Tangent", 16, 2, 17, 1),
    Sketcher.Constraint("Coincident", 17, 2, 0, 1),
    Sketcher.Constraint("Horizontal", 6),
    Sketcher.Constraint("Vertical", 8),
    Sketcher.Constraint("Horizontal", 10),
    Sketcher.Constraint("Horizontal", 13),
    Sketcher.Constraint("Vertical", 15),
    Sketcher.Constraint("Horizontal", 17),
    Sketcher.Constraint("Equal", 0, 1),
    Sketcher.Constraint("Equal", 2, 3),
    Sketcher.Constraint("Equal", 1, 4),
    Sketcher.Constraint("Equal", 4, 5),
    Sketcher.Constraint("Equal", 3, 7),
    Sketcher.Constraint("Equal", 7, 9),
    Sketcher.Constraint("Equal", 11, 12),
    Sketcher.Constraint("Equal", 9, 14),
    Sketcher.Constraint("Equal", 14, 16),
    Sketcher.Constraint("Equal", 18, 19),
    Sketcher.Constraint("Equal", 19, 20),
    Sketcher.Constraint("Equal", 20, 21),
    Sketcher.Constraint("Equal", 21, 22),
    Sketcher.Constraint("Equal", 22, 23),
    Sketcher.Constraint("Equal", 23, 24),
    Sketcher.Constraint("Symmetric", 8, 2, 14, 1, -1, 1),
    Sketcher.Constraint("Symmetric", 0, 3, 4, 3, -1),
    Sketcher.Constraint("Symmetric", 7, 3, 16, 3, -1),
    Sketcher.Constraint("PointOnObject", 2, 1, -1),
    Sketcher.Constraint("Horizontal", 12, 3, 11, 2),
    Sketcher.Constraint("Vertical", 0, 2, 4, 2),
    Sketcher.Constraint("Diameter", 18, Q("5 mm")),
    Sketcher.Constraint("Radius", 0, Q("18.999999 mm")),
    Sketcher.Constraint("DistanceX", 0, 3, -1, 1, Q("134.999999 mm")),
    Sketcher.Constraint("DistanceY", -1, 1, 0, 3, Q("20 mm")),
    Sketcher.Constraint("DistanceY", 20, 3, -1, 1, Q("9 mm")),
    Sketcher.Constraint("DistanceY", -1, 1, 23, 3, Q("22 mm")),
    Sketcher.Constraint("DistanceX", 2, 1, -1, 1, Q("125 mm")),
    Sketcher.Constraint("DistanceX", -1, 1, 11, 2, Q("110 mm")),
    Sketcher.Constraint("DistanceY", 7, 3, 14, 3, Q("36 mm")),
    Sketcher.Constraint("DistanceY", 19, 3, 18, 3, Q("31 mm")),
    Sketcher.Constraint("DistanceY", 21, 3, 18, 3, Q("17 mm")),
    Sketcher.Constraint("DistanceX", 22, 3, 19, 3, Q("5 mm")),
    Sketcher.Constraint("DistanceX", 22, 3, 23, 3, Q("2 mm")),
    Sketcher.Constraint("DistanceY", 10, 2, 12, 2, Q("15 mm")),
    Sketcher.Constraint("DistanceX", 18, 3, -1, 1, Q("31.2 mm")),
    Sketcher.Constraint("DistanceY", -1, 1, 18, 3, Q("8.7 mm")),
    Sketcher.Constraint("DistanceX", 19, 3, -1, 1, Q("85.7 mm")),
    Sketcher.Constraint("DistanceX", 20, 3, -1, 1, Q("40.6 mm")),
    Sketcher.Constraint("DistanceX", 21, 3, -1, 1, Q("20.7 mm")),
    Sketcher.Constraint("DistanceY", -1, 1, 22, 3, Q("0.1 mm")),
    Sketcher.Constraint("DistanceX", -1, 1, 24, 3, Q("61.6 mm")),
    Sketcher.Constraint("DistanceY", 24, 3, -1, 1, Q("1.7 mm")),
    Sketcher.Constraint("Radius", 11, Q("79.407786 mm")),
    Sketcher.Constraint("DistanceX", 13, 2, 13, 1, Q("106.876558 mm")),
    Sketcher.Constraint("DistanceY", 4, 2, 3, 1, Q("27.435939 mm")),
])
pad3 = doc.addObject("PartDesign::Pad", "Pad002")
body3.addObject(pad3)
pad3.Profile = sketch9
pad3.Length = 18.6
pad3.Reversed = True
doc.recompute()

body4 = doc.addObject("PartDesign::Body", "Body003")
body4.BaseFeature = body3
boolean = doc.addObject("PartDesign::Boolean", "Boolean")
body.addObject(boolean)
boolean.Type = "Cut"
boolean.addObjects([body4])
doc.recompute()

boolean2 = doc.addObject("PartDesign::Boolean", "Boolean001")
body2.addObject(boolean2)
boolean2.Type = "Cut"
boolean2.addObjects([body3])

# Sketch on XZ plane
sketch10 = doc.addObject("Sketcher::SketchObject", "Sketch009")
body2.addObject(sketch10)
sketch10.AttachmentSupport = (doc.getObject("XZ_Plane001"), [""])
sketch10.MapMode = "FlatFace"
sketch10.AttachmentOffset = App.Placement(V(0, 0, -23.6), App.Rotation())
sketch10.addGeometry([
    Part.Circle(V(-135, -20, 0), V(0, 0, 1), 19),
    Part.Circle(V(-135, 20, 0), V(0, 0, 1), 19),
], False)
sketch10.addConstraint([
    Sketcher.Constraint("Equal", 0, 1),
    Sketcher.Constraint("Symmetric", 0, 3, 1, 3, -1),
    Sketcher.Constraint("Diameter", 0, Q("38 mm")),
    Sketcher.Constraint("DistanceX", 0, 3, -1, 1, Q("135 mm")),
    Sketcher.Constraint("DistanceY", 0, 3, -1, 1, Q("20 mm")),
])
pocket7 = doc.addObject("PartDesign::Pocket", "Pocket006")
body2.addObject(pocket7)
pocket7.Profile = sketch10
pocket7.Length = 5
pocket7.Reversed = True

doc.recompute()
